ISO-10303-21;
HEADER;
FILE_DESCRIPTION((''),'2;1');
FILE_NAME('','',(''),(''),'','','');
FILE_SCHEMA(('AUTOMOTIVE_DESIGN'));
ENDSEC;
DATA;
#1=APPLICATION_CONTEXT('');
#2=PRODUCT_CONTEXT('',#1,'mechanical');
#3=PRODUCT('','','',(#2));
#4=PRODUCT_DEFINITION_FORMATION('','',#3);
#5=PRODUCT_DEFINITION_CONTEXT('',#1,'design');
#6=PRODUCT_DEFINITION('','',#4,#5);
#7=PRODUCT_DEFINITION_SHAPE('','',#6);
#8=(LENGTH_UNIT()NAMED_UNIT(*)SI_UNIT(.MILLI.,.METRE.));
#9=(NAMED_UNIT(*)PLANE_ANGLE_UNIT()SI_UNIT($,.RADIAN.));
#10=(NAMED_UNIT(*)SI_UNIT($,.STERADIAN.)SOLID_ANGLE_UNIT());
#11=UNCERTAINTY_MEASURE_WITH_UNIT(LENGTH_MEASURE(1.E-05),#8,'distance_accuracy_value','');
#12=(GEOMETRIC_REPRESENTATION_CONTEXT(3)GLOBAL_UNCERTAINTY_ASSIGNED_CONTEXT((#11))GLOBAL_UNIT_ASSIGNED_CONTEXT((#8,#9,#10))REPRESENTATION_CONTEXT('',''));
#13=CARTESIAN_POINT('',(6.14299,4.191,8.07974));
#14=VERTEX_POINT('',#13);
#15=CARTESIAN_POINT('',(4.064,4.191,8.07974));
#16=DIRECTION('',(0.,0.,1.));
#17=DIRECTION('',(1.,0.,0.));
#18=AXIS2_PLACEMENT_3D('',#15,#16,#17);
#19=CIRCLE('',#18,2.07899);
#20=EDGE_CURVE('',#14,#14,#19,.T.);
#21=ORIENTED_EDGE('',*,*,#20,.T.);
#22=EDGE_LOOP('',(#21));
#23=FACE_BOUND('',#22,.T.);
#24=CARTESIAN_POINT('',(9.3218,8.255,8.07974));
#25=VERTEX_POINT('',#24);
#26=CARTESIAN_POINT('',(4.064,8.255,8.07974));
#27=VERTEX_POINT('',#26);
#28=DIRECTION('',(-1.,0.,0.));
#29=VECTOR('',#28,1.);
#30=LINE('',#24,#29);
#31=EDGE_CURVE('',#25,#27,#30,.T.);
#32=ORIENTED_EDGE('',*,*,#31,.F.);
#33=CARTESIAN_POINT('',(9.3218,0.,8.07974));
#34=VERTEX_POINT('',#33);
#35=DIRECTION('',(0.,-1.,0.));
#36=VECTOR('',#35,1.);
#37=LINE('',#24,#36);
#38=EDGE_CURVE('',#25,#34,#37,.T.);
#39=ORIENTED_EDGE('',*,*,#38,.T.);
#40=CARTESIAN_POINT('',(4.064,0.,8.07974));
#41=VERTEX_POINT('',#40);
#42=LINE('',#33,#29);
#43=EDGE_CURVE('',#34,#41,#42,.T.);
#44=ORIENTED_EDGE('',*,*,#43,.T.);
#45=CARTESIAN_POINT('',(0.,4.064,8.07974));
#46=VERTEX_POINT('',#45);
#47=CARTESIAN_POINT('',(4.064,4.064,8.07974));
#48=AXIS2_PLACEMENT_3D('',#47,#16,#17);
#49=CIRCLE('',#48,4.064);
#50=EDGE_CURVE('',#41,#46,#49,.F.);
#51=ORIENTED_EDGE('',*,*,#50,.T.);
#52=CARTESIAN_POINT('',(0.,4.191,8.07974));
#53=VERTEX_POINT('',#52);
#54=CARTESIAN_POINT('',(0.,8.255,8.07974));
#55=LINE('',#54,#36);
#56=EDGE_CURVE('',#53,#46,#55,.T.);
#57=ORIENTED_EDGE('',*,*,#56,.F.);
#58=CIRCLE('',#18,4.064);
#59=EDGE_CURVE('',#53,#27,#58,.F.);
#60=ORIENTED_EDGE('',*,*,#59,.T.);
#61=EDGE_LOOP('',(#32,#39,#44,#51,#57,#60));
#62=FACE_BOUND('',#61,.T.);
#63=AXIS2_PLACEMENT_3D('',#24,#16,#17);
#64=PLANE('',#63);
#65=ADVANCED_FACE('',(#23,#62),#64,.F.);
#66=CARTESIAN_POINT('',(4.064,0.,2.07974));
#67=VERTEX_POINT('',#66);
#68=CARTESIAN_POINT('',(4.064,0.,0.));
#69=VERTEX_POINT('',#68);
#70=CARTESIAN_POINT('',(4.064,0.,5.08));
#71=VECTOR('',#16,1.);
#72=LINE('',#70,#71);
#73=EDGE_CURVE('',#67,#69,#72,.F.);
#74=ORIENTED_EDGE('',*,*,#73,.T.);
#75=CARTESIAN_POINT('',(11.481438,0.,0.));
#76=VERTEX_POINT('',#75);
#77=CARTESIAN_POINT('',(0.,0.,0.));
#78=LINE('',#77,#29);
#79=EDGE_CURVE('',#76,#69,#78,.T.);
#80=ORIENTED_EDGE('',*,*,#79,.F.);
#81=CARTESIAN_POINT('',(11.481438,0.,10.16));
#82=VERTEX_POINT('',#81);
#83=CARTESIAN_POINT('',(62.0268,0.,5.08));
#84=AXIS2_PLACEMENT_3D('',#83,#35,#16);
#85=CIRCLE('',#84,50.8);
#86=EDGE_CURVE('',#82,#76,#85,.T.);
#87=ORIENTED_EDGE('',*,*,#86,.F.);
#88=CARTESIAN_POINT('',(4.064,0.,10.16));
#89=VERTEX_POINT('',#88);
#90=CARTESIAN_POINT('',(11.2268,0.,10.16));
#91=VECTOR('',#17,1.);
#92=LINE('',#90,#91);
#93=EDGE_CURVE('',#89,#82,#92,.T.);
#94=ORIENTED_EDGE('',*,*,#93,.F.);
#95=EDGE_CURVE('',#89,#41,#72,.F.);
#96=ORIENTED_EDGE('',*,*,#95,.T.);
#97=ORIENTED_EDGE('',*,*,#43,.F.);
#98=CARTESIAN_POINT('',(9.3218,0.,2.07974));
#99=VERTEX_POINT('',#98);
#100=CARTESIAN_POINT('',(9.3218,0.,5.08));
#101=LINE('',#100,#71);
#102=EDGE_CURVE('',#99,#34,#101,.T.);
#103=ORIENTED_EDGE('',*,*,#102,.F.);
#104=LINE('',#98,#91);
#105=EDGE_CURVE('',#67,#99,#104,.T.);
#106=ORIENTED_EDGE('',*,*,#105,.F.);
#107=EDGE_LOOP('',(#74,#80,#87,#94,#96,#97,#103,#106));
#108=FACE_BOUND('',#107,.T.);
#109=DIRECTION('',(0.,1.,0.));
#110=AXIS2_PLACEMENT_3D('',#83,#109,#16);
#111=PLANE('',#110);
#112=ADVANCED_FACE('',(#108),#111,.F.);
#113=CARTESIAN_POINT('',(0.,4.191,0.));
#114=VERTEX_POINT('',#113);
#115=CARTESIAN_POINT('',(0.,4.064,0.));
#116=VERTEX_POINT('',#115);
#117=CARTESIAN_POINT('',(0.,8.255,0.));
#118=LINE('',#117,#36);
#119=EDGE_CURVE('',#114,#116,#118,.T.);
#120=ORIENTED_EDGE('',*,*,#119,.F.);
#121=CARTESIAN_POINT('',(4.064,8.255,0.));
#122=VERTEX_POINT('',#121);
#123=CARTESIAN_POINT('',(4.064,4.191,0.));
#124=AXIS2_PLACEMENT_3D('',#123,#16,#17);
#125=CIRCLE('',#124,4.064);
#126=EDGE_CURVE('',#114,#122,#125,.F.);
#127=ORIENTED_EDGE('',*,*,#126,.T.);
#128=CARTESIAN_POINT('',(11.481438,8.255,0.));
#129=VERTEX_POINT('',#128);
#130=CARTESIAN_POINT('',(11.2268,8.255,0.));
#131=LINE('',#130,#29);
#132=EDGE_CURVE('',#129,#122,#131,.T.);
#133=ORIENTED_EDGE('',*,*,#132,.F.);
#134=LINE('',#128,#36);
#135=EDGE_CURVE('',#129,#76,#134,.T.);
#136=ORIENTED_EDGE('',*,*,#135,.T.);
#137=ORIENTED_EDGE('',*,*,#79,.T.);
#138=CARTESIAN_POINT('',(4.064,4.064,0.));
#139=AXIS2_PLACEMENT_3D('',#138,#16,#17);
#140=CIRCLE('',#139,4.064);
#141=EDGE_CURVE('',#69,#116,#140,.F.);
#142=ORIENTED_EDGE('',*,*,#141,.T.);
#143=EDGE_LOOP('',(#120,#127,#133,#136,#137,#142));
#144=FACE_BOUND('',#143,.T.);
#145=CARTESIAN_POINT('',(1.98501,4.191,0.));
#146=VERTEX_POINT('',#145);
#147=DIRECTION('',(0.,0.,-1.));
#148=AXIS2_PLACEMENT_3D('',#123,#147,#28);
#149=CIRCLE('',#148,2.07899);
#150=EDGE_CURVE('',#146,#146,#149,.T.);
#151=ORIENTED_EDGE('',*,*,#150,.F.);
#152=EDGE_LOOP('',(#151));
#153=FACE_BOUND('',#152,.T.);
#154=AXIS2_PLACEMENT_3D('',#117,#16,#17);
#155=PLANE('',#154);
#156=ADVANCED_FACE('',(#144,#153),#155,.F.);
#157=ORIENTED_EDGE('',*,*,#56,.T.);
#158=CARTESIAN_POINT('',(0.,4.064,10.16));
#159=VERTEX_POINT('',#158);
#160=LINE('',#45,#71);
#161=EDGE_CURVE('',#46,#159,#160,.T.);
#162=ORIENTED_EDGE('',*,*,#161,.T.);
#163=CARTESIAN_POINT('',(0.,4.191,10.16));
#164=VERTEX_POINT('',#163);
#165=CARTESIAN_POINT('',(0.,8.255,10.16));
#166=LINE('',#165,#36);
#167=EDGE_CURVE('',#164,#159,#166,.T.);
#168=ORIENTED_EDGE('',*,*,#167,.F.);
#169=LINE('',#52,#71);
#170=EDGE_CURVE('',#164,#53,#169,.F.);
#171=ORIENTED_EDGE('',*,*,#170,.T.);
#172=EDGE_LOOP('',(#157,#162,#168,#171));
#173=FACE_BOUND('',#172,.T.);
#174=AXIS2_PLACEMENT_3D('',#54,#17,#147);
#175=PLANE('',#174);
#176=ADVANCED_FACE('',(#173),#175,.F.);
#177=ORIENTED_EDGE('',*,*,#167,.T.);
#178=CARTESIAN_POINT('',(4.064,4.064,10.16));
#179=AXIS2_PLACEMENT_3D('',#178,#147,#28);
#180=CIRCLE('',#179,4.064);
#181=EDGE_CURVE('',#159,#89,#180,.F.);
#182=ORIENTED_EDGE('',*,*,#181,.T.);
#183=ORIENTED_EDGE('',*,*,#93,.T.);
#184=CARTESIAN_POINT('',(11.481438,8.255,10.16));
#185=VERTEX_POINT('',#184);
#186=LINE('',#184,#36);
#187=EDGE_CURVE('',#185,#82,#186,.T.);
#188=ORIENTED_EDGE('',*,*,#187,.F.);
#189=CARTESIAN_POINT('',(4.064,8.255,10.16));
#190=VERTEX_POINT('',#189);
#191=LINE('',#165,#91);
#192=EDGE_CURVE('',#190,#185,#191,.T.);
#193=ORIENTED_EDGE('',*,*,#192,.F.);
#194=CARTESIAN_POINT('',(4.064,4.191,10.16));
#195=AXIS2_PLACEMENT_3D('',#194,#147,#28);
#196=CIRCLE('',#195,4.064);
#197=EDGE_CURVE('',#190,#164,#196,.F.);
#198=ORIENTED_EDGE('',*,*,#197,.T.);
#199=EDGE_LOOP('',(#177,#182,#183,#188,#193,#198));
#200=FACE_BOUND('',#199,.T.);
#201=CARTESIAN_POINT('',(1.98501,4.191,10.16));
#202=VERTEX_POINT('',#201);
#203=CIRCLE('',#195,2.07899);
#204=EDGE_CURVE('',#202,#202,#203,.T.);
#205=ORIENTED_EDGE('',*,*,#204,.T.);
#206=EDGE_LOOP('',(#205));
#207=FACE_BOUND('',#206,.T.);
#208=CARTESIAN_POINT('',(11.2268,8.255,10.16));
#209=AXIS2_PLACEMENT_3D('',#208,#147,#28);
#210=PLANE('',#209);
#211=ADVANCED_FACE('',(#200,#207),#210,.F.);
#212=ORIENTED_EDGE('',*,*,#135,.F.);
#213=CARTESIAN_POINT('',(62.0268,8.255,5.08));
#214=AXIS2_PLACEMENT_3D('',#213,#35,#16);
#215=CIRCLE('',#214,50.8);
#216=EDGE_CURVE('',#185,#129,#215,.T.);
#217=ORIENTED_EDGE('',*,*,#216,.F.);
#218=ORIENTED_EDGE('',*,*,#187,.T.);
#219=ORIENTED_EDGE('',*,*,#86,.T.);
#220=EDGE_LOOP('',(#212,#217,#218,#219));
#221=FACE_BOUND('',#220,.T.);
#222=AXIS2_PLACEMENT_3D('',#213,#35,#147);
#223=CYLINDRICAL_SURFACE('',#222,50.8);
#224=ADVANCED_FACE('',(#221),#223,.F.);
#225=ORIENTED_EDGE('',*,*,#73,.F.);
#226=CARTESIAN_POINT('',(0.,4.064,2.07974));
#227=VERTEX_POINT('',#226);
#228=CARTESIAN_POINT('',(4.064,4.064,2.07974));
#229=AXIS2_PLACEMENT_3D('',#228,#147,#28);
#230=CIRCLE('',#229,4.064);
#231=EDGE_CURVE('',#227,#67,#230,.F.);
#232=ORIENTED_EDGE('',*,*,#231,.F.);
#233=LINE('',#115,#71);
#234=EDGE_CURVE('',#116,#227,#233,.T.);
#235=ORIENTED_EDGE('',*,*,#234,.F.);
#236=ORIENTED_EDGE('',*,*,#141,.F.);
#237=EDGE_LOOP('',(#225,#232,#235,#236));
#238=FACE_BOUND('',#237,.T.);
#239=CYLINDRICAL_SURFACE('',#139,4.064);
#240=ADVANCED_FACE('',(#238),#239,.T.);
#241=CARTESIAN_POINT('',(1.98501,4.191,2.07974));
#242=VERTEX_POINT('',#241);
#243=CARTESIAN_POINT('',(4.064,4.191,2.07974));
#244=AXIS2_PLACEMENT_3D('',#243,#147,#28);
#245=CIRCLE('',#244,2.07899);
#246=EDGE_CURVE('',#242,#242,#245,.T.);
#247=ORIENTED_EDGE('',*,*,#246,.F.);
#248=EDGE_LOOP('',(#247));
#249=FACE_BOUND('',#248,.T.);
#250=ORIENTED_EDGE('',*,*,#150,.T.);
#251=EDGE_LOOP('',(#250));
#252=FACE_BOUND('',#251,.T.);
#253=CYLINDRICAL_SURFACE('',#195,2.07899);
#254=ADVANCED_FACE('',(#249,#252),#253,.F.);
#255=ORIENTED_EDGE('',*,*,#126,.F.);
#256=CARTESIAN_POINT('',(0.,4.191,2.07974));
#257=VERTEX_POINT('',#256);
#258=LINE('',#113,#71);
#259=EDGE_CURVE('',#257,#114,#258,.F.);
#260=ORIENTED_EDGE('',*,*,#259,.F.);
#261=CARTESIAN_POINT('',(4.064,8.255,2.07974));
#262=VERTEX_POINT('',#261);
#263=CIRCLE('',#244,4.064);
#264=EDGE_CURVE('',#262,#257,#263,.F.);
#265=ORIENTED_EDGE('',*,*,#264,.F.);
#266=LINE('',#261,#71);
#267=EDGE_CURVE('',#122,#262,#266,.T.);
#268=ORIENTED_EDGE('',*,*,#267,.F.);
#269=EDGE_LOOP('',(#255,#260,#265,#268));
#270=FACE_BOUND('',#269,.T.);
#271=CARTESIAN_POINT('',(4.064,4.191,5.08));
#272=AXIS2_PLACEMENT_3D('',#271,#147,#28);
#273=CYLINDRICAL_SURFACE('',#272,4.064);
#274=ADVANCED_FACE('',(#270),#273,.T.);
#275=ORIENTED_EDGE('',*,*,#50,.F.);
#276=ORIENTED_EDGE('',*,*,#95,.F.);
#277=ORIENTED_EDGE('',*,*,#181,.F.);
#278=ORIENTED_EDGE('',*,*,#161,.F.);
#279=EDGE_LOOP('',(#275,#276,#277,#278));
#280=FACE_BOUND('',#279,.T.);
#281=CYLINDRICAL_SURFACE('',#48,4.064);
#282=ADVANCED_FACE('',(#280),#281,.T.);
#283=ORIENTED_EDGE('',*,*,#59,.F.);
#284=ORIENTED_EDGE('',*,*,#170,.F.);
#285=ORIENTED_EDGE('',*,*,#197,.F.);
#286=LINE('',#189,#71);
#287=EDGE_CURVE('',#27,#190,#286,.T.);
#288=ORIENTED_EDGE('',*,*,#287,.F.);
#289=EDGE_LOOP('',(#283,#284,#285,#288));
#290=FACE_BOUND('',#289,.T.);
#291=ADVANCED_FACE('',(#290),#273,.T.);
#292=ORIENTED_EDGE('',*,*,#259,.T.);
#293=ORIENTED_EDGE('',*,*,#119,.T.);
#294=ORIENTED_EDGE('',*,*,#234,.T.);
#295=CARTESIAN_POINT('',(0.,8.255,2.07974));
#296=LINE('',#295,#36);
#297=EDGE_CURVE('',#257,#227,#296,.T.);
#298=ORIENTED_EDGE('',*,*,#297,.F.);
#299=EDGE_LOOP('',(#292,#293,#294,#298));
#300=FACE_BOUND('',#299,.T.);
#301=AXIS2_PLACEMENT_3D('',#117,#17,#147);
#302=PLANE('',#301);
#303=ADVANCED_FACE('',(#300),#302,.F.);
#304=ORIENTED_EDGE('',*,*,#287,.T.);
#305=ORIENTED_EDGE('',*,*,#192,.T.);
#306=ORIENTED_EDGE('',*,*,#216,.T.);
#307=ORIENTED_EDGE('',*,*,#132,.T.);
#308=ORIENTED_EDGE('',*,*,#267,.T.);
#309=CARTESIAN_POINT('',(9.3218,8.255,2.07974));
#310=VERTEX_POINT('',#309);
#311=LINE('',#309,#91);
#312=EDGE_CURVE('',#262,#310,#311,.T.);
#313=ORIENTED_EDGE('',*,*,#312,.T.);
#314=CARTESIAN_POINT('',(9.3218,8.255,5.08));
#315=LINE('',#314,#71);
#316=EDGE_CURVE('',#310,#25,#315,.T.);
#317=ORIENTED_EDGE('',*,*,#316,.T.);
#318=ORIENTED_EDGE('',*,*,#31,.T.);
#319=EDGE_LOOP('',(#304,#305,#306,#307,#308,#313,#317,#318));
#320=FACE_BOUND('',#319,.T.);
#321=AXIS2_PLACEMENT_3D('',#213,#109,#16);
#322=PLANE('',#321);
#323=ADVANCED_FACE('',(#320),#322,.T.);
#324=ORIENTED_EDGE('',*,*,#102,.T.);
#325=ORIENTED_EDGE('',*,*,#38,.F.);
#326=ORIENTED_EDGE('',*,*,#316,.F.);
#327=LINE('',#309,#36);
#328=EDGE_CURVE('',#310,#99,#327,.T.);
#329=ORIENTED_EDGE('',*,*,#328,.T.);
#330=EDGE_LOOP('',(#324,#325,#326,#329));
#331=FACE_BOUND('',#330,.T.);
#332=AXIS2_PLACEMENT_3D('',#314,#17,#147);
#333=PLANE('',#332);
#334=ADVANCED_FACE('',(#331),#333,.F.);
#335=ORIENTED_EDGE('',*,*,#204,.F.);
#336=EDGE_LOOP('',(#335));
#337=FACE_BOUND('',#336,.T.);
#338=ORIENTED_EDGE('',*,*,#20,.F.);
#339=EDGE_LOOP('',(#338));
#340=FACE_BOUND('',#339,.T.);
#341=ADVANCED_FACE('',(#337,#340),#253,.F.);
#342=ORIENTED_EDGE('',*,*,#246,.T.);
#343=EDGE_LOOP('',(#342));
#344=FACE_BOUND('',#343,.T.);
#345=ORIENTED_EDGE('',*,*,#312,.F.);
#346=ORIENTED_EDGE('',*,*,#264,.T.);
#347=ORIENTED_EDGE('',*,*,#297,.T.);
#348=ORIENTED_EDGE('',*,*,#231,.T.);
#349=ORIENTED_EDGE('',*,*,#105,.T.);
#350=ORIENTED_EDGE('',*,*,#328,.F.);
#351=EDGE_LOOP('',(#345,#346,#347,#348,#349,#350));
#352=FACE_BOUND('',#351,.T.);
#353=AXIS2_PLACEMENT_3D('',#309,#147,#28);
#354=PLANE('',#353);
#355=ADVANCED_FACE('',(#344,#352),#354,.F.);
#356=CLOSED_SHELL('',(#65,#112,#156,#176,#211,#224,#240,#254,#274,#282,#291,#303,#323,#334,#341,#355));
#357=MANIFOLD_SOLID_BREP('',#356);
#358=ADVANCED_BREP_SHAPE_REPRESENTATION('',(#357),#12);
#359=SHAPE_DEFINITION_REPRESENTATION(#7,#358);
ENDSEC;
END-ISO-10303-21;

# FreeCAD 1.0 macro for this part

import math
import FreeCAD as App
import Part
import Sketcher

V = App.Vector
Q = App.Units.Quantity


def edges_at(feature, points):
    """Names of the edges that pass closest to the given points."""
    edges = feature.Shape.Edges
    near = lambda p: min(range(len(edges)), key=lambda i: edges[i].distToShape(Part.Vertex(*p))[0])
    return sorted({f"Edge{near(p) + 1}" for p in points})

doc = App.newDocument("Part")
body = doc.addObject("PartDesign::Body", "Body")

# Sketch on XZ plane
sketch1 = doc.addObject("Sketcher::SketchObject", "Sketch")
body.addObject(sketch1)
sketch1.AttachmentSupport = (doc.XZ_Plane, [""])
sketch1.MapMode = "FlatFace"
sketch1.addGeometry([
    Part.LineSegment(V(11.5, 0, 0), V(0, 0, 0)),  # 0
    Part.LineSegment(V(0, 0, 0), V(0, 2.1, 0)),  # 1
    Part.LineSegment(V(0, 2.1, 0), V(9.3, 2.1, 0)),  # 2
    Part.LineSegment(V(9.3, 2.1, 0), V(9.3, 8.1, 0)),  # 3
    Part.LineSegment(V(9.3, 8.1, 0), V(0, 8.1, 0)),  # 4
    Part.LineSegment(V(0, 8.1, 0), V(0, 10.2, 0)),  # 5
    Part.LineSegment(V(0, 10.2, 0), V(11.5, 10.2, 0)),  # 6
    Part.ArcOfCircle(Part.Circle(V(62, 5.1, 0), V(0, 0, 1), 50.8), math.radians(174.26), math.radians(185.74)),  # 7
], False)
sketch1.addConstraint([
    Sketcher.Constraint("Coincident", 0, 2, 1, 1),
    Sketcher.Constraint("Coincident", 1, 2, 2, 1),
    Sketcher.Constraint("Coincident", 2, 2, 3, 1),
    Sketcher.Constraint("Coincident", 3, 2, 4, 1),
    Sketcher.Constraint("Coincident", 4, 2, 5, 1),
    Sketcher.Constraint("Coincident", 5, 2, 6, 1),
    Sketcher.Constraint("Coincident", 6, 2, 7, 1),
    Sketcher.Constraint("Coincident", 7, 2, 0, 1),
    Sketcher.Constraint("Horizontal", 0),
    Sketcher.Constraint("Vertical", 1),
    Sketcher.Constraint("Horizontal", 2),
    Sketcher.Constraint("Vertical", 3),
    Sketcher.Constraint("Horizontal", 4),
    Sketcher.Constraint("Vertical", 5),
    Sketcher.Constraint("Horizontal", 6),
    Sketcher.Constraint("Coincident", 0, 2, -1, 1),
    Sketcher.Constraint("PointOnObject", 4, 2, -2),
    Sketcher.Constraint("Vertical", 6, 2, 7, 2),
    Sketcher.Constraint("Radius", 7, Q("2 in")),
    Sketcher.Constraint("DistanceY", -1, 1, 7, 3, Q("0.2 in")),
    Sketcher.Constraint("DistanceX", 2, 1, 2, 2, Q("0.367 in")),
    Sketcher.Constraint("DistanceY", 5, 1, 5, 2, Q("0.0819 in")),
    Sketcher.Constraint("DistanceX", -1, 1, 7, 3, Q("2.442 in")),
    Sketcher.Constraint("DistanceY", 3, 1, 3, 2, 6.0),
])
pad1 = doc.addObject("PartDesign::Pad", "Pad")
body.addObject(pad1)
pad1.Profile = sketch1
pad1.Length = Q("0.325 in")
pad1.Reversed = True
doc.recompute()

fillet = doc.addObject("PartDesign::Fillet", "Fillet")
body.addObject(fillet)
fillet.Base = (pad1, edges_at(pad1, [
    (0, 0, 9.12),
    (0, 0, 1.04),
    (0, 8.255, 9.12),
    (0, 8.255, 1.04),
]))
fillet.Radius = Q("0.16 in")

# Sketch on XY plane
sketch2 = doc.addObject("Sketcher::SketchObject", "Sketch001")
body.addObject(sketch2)
sketch2.AttachmentSupport = (doc.XY_Plane, [""])
sketch2.MapMode = "FlatFace"
sketch2.addGeometry(Part.Circle(V(4.1, 4.2, 0), V(0, 0, 1), 2.1), False)
sketch2.addConstraint([
    Sketcher.Constraint("Diameter", 0, Q("0.1637 in")),
    Sketcher.Constraint("DistanceX", -1, 1, 0, 3, Q("0.16 in")),
    Sketcher.Constraint("DistanceY", -1, 1, 0, 3, Q("0.165 in")),
])
pocket1 = doc.addObject("PartDesign::Pocket", "Pocket")
body.addObject(pocket1)
pocket1.Profile = sketch2
pocket1.Type = "ThroughAll"
pocket1.Reversed = True

doc.recompute()
